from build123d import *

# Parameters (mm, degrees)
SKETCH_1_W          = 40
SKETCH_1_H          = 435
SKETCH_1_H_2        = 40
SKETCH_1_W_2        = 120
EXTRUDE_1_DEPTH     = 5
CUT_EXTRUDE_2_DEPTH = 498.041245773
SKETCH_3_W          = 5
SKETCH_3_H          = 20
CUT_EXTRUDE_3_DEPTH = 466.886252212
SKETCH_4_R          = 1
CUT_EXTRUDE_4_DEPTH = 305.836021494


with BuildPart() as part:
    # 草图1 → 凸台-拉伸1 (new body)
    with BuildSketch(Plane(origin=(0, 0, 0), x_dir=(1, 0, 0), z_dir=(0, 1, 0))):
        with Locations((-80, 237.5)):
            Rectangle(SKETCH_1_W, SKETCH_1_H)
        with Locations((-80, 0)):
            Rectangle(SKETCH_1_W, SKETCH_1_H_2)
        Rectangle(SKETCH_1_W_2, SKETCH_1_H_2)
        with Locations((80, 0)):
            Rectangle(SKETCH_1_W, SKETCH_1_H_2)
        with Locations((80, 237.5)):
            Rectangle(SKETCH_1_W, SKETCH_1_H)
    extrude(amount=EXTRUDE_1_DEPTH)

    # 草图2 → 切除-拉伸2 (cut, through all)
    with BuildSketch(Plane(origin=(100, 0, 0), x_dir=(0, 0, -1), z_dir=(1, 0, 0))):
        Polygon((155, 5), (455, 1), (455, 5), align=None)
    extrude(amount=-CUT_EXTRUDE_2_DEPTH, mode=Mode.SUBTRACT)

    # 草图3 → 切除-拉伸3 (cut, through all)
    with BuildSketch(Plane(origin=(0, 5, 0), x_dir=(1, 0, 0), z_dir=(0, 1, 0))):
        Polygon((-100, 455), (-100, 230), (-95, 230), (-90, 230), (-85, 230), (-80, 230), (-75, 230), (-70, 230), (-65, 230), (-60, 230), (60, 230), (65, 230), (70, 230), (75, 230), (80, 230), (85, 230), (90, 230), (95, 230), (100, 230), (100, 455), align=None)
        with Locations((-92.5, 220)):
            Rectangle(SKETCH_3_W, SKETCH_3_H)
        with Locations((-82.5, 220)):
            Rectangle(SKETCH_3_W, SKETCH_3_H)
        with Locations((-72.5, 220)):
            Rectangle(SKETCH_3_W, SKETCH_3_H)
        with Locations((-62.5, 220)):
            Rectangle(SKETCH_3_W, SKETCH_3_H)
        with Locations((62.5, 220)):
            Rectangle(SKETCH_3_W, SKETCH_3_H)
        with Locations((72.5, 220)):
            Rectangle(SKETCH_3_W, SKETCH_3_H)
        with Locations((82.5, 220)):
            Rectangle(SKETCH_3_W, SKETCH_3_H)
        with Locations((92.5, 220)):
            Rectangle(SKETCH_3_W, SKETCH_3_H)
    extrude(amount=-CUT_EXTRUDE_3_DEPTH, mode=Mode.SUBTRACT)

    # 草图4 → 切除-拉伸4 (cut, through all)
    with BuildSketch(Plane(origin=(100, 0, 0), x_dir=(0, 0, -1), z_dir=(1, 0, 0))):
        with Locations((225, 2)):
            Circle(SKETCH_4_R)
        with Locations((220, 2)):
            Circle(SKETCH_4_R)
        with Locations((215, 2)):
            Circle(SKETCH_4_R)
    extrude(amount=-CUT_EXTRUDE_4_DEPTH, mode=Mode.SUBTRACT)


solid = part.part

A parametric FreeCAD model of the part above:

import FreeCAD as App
import Part
import Sketcher
from FreeCAD import Vector

doc = App.newDocument("Part")
params = doc.addObject("Spreadsheet::Sheet", "Params")
for row, (alias, value) in enumerate([
    ("sketch1_width", "200 mm"),
    ("sketch1_width2", "40 mm"),
    ("sketch1_height", "475 mm"),
    ("sketch1_height2", "435 mm"),
    ("pad1_length", "5 mm"),
    ("sketch2_width", "4 mm"),
    ("sketch2_height", "300 mm"),
    ("sketch3_width", "5 mm"),
    ("sketch3_width2", "120 mm"),
    ("sketch3_height", "225 mm"),
    ("sketch3_height2", "20 mm"),
    ("sketch4_diameter", "2 mm"),
], start=1):
    params.set(f"A{row}", alias)
    params.set(f"B{row}", "=" + value)
    params.setAlias(f"B{row}", alias)

body = doc.addObject("PartDesign::Body", "Body")

sketch1 = body.newObject("Sketcher::SketchObject", "Sketch")
sketch1.AttachmentSupport = (doc.getObject("XZ_Plane"), [""])
sketch1.MapMode = "FlatFace"
sketch1.addGeometry(Part.LineSegment(Vector(-100, -455, 0), Vector(-100, 20, 0)), False)
sketch1.addGeometry(Part.LineSegment(Vector(-100, 20, 0), Vector(100, 20, 0)), False)
sketch1.addGeometry(Part.LineSegment(Vector(100, 20, 0), Vector(100, -455, 0)), False)
sketch1.addGeometry(Part.LineSegment(Vector(100, -455, 0), Vector(60, -455, 0)), False)
sketch1.addGeometry(Part.LineSegment(Vector(60, -455, 0), Vector(60, -20, 0)), False)
sketch1.addGeometry(Part.LineSegment(Vector(60, -20, 0), Vector(-60, -20, 0)), False)
sketch1.addGeometry(Part.LineSegment(Vector(-60, -20, 0), Vector(-60, -455, 0)), False)
sketch1.addGeometry(Part.LineSegment(Vector(-60, -455, 0), Vector(-100, -455, 0)), False)
sketch1.addConstraint(Sketcher.Constraint("Coincident", 0, 2, 1, 1))
sketch1.addConstraint(Sketcher.Constraint("Coincident", 1, 2, 2, 1))
sketch1.addConstraint(Sketcher.Constraint("Coincident", 2, 2, 3, 1))
sketch1.addConstraint(Sketcher.Constraint("Coincident", 3, 2, 4, 1))
sketch1.addConstraint(Sketcher.Constraint("Coincident", 4, 2, 5, 1))
sketch1.addConstraint(Sketcher.Constraint("Coincident", 5, 2, 6, 1))
sketch1.addConstraint(Sketcher.Constraint("Coincident", 6, 2, 7, 1))
sketch1.addConstraint(Sketcher.Constraint("Coincident", 7, 2, 0, 1))
sketch1.addConstraint(Sketcher.Constraint("Vertical", 0))
sketch1.addConstraint(Sketcher.Constraint("Horizontal", 1))
sketch1.addConstraint(Sketcher.Constraint("Vertical", 2))
sketch1.addConstraint(Sketcher.Constraint("Horizontal", 3))
sketch1.addConstraint(Sketcher.Constraint("Vertical", 4))
sketch1.addConstraint(Sketcher.Constraint("Horizontal", 5))
sketch1.addConstraint(Sketcher.Constraint("Vertical", 6))
sketch1.addConstraint(Sketcher.Constraint("Horizontal", 7))
sketch1.addConstraint(Sketcher.Constraint("Symmetric", 3, 2, 6, 2, -2))
sketch1.addConstraint(Sketcher.Constraint("Equal", 3, 7))
sketch1.addConstraint(Sketcher.Constraint("DistanceX", 1, 1, 1, 2, 200.0))
sketch1.addConstraint(Sketcher.Constraint("DistanceX", 3, 2, 3, 1, 40.0))
sketch1.addConstraint(Sketcher.Constraint("DistanceY", 0, 1, 0, 2, 475.0))
sketch1.addConstraint(Sketcher.Constraint("DistanceY", 4, 1, 4, 2, 435.0))
sketch1.addConstraint(Sketcher.Constraint("DistanceY", -1, 1, 0, 2, 20.0))
sketch1.setExpression("Constraints[18]", "Params.sketch1_width")
sketch1.setExpression("Constraints[19]", "Params.sketch1_width2")
sketch1.setExpression("Constraints[20]", "Params.sketch1_height")
sketch1.setExpression("Constraints[21]", "Params.sketch1_height2")
pad1 = body.newObject("PartDesign::Pad", "Pad")
pad1.Profile = sketch1
pad1.setExpression("Length", "Params.pad1_length")
pad1.Reversed = True

sketch2 = body.newObject("Sketcher::SketchObject", "Sketch001")
sketch2.AttachmentSupport = (doc.getObject("YZ_Plane"), [""])
sketch2.MapMode = "FlatFace"
sketch2.AttachmentOffset = App.Placement(Vector(0, 0, 100), App.Rotation())
sketch2.addGeometry(Part.LineSegment(Vector(5, -155, 0), Vector(1, -455, 0)), False)
sketch2.addGeometry(Part.LineSegment(Vector(1, -455, 0), Vector(5, -455, 0)), False)
sketch2.addGeometry(Part.LineSegment(Vector(5, -455, 0), Vector(5, -155, 0)), False)
sketch2.addConstraint(Sketcher.Constraint("Coincident", 0, 2, 1, 1))
sketch2.addConstraint(Sketcher.Constraint("Coincident", 1, 2, 2, 1))
sketch2.addConstraint(Sketcher.Constraint("Coincident", 2, 2, 0, 1))
sketch2.addConstraint(Sketcher.Constraint("Horizontal", 1))
sketch2.addConstraint(Sketcher.Constraint("Vertical", 2))
sketch2.addConstraint(Sketcher.Constraint("DistanceX", 1, 1, 1, 2, 4.0))
sketch2.addConstraint(Sketcher.Constraint("DistanceY", 2, 1, 2, 2, 300.0))
sketch2.addConstraint(Sketcher.Constraint("DistanceX", -1, 1, 0, 2, 1.0))
sketch2.addConstraint(Sketcher.Constraint("DistanceY", 0, 2, -1, 1, 455.0))
sketch2.setExpression("Constraints[5]", "Params.sketch2_width")
sketch2.setExpression("Constraints[6]", "Params.sketch2_height")
pocket1 = body.newObject("PartDesign::Pocket", "Pocket")
pocket1.Profile = sketch2
pocket1.Type = "ThroughAll"

sketch3 = body.newObject("Sketcher::SketchObject", "Sketch002")
sketch3.AttachmentSupport = (doc.getObject("XZ_Plane"), [""])
sketch3.MapMode = "FlatFace"
sketch3.AttachmentOffset = App.Placement(Vector(0, 0, -5), App.Rotation())
sketch3.addGeometry(Part.LineSegment(Vector(-100, -455, 0), Vector(-100, -230, 0)), False)
sketch3.addGeometry(Part.LineSegment(Vector(-100, -230, 0), Vector(-95, -230, 0)), False)
sketch3.addGeometry(Part.LineSegment(Vector(-95, -230, 0), Vector(-95, -210, 0)), False)
sketch3.addGeometry(Part.LineSegment(Vector(-95, -210, 0), Vector(-90, -210, 0)), False)
sketch3.addGeometry(Part.LineSegment(Vector(-90, -210, 0), Vector(-90, -230, 0)), False)
sketch3.addGeometry(Part.LineSegment(Vector(-90, -230, 0), Vector(-85, -230, 0)), False)
sketch3.addGeometry(Part.LineSegment(Vector(-85, -230, 0), Vector(-85, -210, 0)), False)
sketch3.addGeometry(Part.LineSegment(Vector(-85, -210, 0), Vector(-80, -210, 0)), False)
sketch3.addGeometry(Part.LineSegment(Vector(-80, -210, 0), Vector(-80, -230, 0)), False)
sketch3.addGeometry(Part.LineSegment(Vector(-80, -230, 0), Vector(-75, -230, 0)), False)
sketch3.addGeometry(Part.LineSegment(Vector(-75, -230, 0), Vector(-75, -210, 0)), False)
sketch3.addGeometry(Part.LineSegment(Vector(-75, -210, 0), Vector(-70, -210, 0)), False)
sketch3.addGeometry(Part.LineSegment(Vector(-70, -210, 0), Vector(-70, -230, 0)), False)
sketch3.addGeometry(Part.LineSegment(Vector(-70, -230, 0), Vector(-65, -230, 0)), False)
sketch3.addGeometry(Part.LineSegment(Vector(-65, -230, 0), Vector(-65, -210, 0)), False)
sketch3.addGeometry(Part.LineSegment(Vector(-65, -210, 0), Vector(-60, -210, 0)), False)
sketch3.addGeometry(Part.LineSegment(Vector(-60, -210, 0), Vector(-60, -230, 0)), False)
sketch3.addGeometry(Part.LineSegment(Vector(-60, -230, 0), Vector(60, -230, 0)), False)
sketch3.addGeometry(Part.LineSegment(Vector(60, -230, 0), Vector(60, -210, 0)), False)
sketch3.addGeometry(Part.LineSegment(Vector(60, -210, 0), Vector(65, -210, 0)), False)
sketch3.addGeometry(Part.LineSegment(Vector(65, -210, 0), Vector(65, -230, 0)), False)
sketch3.addGeometry(Part.LineSegment(Vector(65, -230, 0), Vector(70, -230, 0)), False)
sketch3.addGeometry(Part.LineSegment(Vector(70, -230, 0), Vector(70, -210, 0)), False)
sketch3.addGeometry(Part.LineSegment(Vector(70, -210, 0), Vector(75, -210, 0)), False)
sketch3.addGeometry(Part.LineSegment(Vector(75, -210, 0), Vector(75, -230, 0)), False)
sketch3.addGeometry(Part.LineSegment(Vector(75, -230, 0), Vector(80, -230, 0)), False)
sketch3.addGeometry(Part.LineSegment(Vector(80, -230, 0), Vector(80, -210, 0)), False)
sketch3.addGeometry(Part.LineSegment(Vector(80, -210, 0), Vector(85, -210, 0)), False)
sketch3.addGeometry(Part.LineSegment(Vector(85, -210, 0), Vector(85, -230, 0)), False)
sketch3.addGeometry(Part.LineSegment(Vector(85, -230, 0), Vector(90, -230, 0)), False)
sketch3.addGeometry(Part.LineSegment(Vector(90, -230, 0), Vector(90, -210, 0)), False)
sketch3.addGeometry(Part.LineSegment(Vector(90, -210, 0), Vector(95, -210, 0)), False)
sketch3.addGeometry(Part.LineSegment(Vector(95, -210, 0), Vector(95, -230, 0)), False)
sketch3.addGeometry(Part.LineSegment(Vector(95, -230, 0), Vector(100, -230, 0)), False)
sketch3.addGeometry(Part.LineSegment(Vector(100, -230, 0), Vector(100, -455, 0)), False)
sketch3.addGeometry(Part.LineSegment(Vector(100, -455, 0), Vector(-100, -455, 0)), False)
sketch3.addConstraint(Sketcher.Constraint("Coincident", 0, 2, 1, 1))
sketch3.addConstraint(Sketcher.Constraint("Coincident", 1, 2, 2, 1))
sketch3.addConstraint(Sketcher.Constraint("Coincident", 2, 2, 3, 1))
sketch3.addConstraint(Sketcher.Constraint("Coincident", 3, 2, 4, 1))
sketch3.addConstraint(Sketcher.Constraint("Coincident", 4, 2, 5, 1))
sketch3.addConstraint(Sketcher.Constraint("Coincident", 5, 2, 6, 1))
sketch3.addConstraint(Sketcher.Constraint("Coincident", 6, 2, 7, 1))
sketch3.addConstraint(Sketcher.Constraint("Coincident", 7, 2, 8, 1))
sketch3.addConstraint(Sketcher.Constraint("Coincident", 8, 2, 9, 1))
sketch3.addConstraint(Sketcher.Constraint("Coincident", 9, 2, 10, 1))
sketch3.addConstraint(Sketcher.Constraint("Coincident", 10, 2, 11, 1))
sketch3.addConstraint(Sketcher.Constraint("Coincident", 11, 2, 12, 1))
sketch3.addConstraint(Sketcher.Constraint("Coincident", 12, 2, 13, 1))
sketch3.addConstraint(Sketcher.Constraint("Coincident", 13, 2, 14, 1))
sketch3.addConstraint(Sketcher.Constraint("Coincident", 14, 2, 15, 1))
sketch3.addConstraint(Sketcher.Constraint("Coincident", 15, 2, 16, 1))
sketch3.addConstraint(Sketcher.Constraint("Coincident", 16, 2, 17, 1))
sketch3.addConstraint(Sketcher.Constraint("Coincident", 17, 2, 18, 1))
sketch3.addConstraint(Sketcher.Constraint("Coincident", 18, 2, 19, 1))
sketch3.addConstraint(Sketcher.Constraint("Coincident", 19, 2, 20, 1))
sketch3.addConstraint(Sketcher.Constraint("Coincident", 20, 2, 21, 1))
sketch3.addConstraint(Sketcher.Constraint("Coincident", 21, 2, 22, 1))
sketch3.addConstraint(Sketcher.Constraint("Coincident", 22, 2, 23, 1))
sketch3.addConstraint(Sketcher.Constraint("Coincident", 23, 2, 24, 1))
sketch3.addConstraint(Sketcher.Constraint("Coincident", 24, 2, 25, 1))
sketch3.addConstraint(Sketcher.Constraint("Coincident", 25, 2, 26, 1))
sketch3.addConstraint(Sketcher.Constraint("Coincident", 26, 2, 27, 1))
sketch3.addConstraint(Sketcher.Constraint("Coincident", 27, 2, 28, 1))
sketch3.addConstraint(Sketcher.Constraint("Coincident", 28, 2, 29, 1))
sketch3.addConstraint(Sketcher.Constraint("Coincident", 29, 2, 30, 1))
sketch3.addConstraint(Sketcher.Constraint("Coincident", 30, 2, 31, 1))
sketch3.addConstraint(Sketcher.Constraint("Coincident", 31, 2, 32, 1))
sketch3.addConstraint(Sketcher.Constraint("Coincident", 32, 2, 33, 1))
sketch3.addConstraint(Sketcher.Constraint("Coincident", 33, 2, 34, 1))
sketch3.addConstraint(Sketcher.Constraint("Coincident", 34, 2, 35, 1))
sketch3.addConstraint(Sketcher.Constraint("Coincident", 35, 2, 0, 1))
sketch3.addConstraint(Sketcher.Constraint("Vertical", 0))
sketch3.addConstraint(Sketcher.Constraint("Horizontal", 1))
sketch3.addConstraint(Sketcher.Constraint("Vertical", 2))
sketch3.addConstraint(Sketcher.Constraint("Horizontal", 3))
sketch3.addConstraint(Sketcher.Constraint("Vertical", 4))
sketch3.addConstraint(Sketcher.Constraint("Horizontal", 5))
sketch3.addConstraint(Sketcher.Constraint("Vertical", 6))
sketch3.addConstraint(Sketcher.Constraint("Horizontal", 7))
sketch3.addConstraint(Sketcher.Constraint("Vertical", 8))
sketch3.addConstraint(Sketcher.Constraint("Horizontal", 9))
sketch3.addConstraint(Sketcher.Constraint("Vertical", 10))
sketch3.addConstraint(Sketcher.Constraint("Horizontal", 11))
sketch3.addConstraint(Sketcher.Constraint("Vertical", 12))
sketch3.addConstraint(Sketcher.Constraint("Horizontal", 13))
sketch3.addConstraint(Sketcher.Constraint("Vertical", 14))
sketch3.addConstraint(Sketcher.Constraint("Horizontal", 15))
sketch3.addConstraint(Sketcher.Constraint("Vertical", 16))
sketch3.addConstraint(Sketcher.Constraint("Horizontal", 17))
sketch3.addConstraint(Sketcher.Constraint("Vertical", 18))
sketch3.addConstraint(Sketcher.Constraint("Horizontal", 19))
sketch3.addConstraint(Sketcher.Constraint("Vertical", 20))
sketch3.addConstraint(Sketcher.Constraint("Horizontal", 21))
sketch3.addConstraint(Sketcher.Constraint("Vertical", 22))
sketch3.addConstraint(Sketcher.Constraint("Horizontal", 23))
sketch3.addConstraint(Sketcher.Constraint("Vertical", 24))
sketch3.addConstraint(Sketcher.Constraint("Horizontal", 25))
sketch3.addConstraint(Sketcher.Constraint("Vertical", 26))
sketch3.addConstraint(Sketcher.Constraint("Horizontal", 27))
sketch3.addConstraint(Sketcher.Constraint("Vertical", 28))
sketch3.addConstraint(Sketcher.Constraint("Horizontal", 29))
sketch3.addConstraint(Sketcher.Constraint("Vertical", 30))
sketch3.addConstraint(Sketcher.Constraint("Horizontal", 31))
sketch3.addConstraint(Sketcher.Constraint("Vertical", 32))
sketch3.addConstraint(Sketcher.Constraint("Horizontal", 33))
sketch3.addConstraint(Sketcher.Constraint("Vertical", 34))
sketch3.addConstraint(Sketcher.Constraint("Horizontal", 35))
sketch3.addConstraint(Sketcher.Constraint("Symmetric", 15, 2, 18, 2, -2))
sketch3.addConstraint(Sketcher.Constraint("Symmetric", 13, 2, 20, 2, -2))
sketch3.addConstraint(Sketcher.Constraint("Symmetric", 11, 2, 22, 2, -2))
sketch3.addConstraint(Sketcher.Constraint("Symmetric", 9, 2, 24, 2, -2))
sketch3.addConstraint(Sketcher.Constraint("Symmetric", 7, 2, 26, 2, -2))
sketch3.addConstraint(Sketcher.Constraint("Symmetric", 5, 2, 28, 2, -2))
sketch3.addConstraint(Sketcher.Constraint("Symmetric", 3, 2, 30, 2, -2))
sketch3.addConstraint(Sketcher.Constraint("Symmetric", 1, 2, 32, 2, -2))
sketch3.addConstraint(Sketcher.Constraint("Horizontal", 1, 2, 4, 2))
sketch3.addConstraint(Sketcher.Constraint("Horizontal", 3, 2, 6, 2))
sketch3.addConstraint(Sketcher.Constraint("Horizontal", 5, 2, 8, 2))
sketch3.addConstraint(Sketcher.Constraint("Horizontal", 7, 2, 10, 2))
sketch3.addConstraint(Sketcher.Constraint("Horizontal", 9, 2, 12, 2))
sketch3.addConstraint(Sketcher.Constraint("Horizontal", 11, 2, 14, 2))
sketch3.addConstraint(Sketcher.Constraint("Horizontal", 13, 2, 16, 2))
sketch3.addConstraint(Sketcher.Constraint("Equal", 1, 3))
sketch3.addConstraint(Sketcher.Constraint("Equal", 3, 5))
sketch3.addConstraint(Sketcher.Constraint("Equal", 5, 7))
sketch3.addConstraint(Sketcher.Constraint("Equal", 7, 9))
sketch3.addConstraint(Sketcher.Constraint("Equal", 9, 11))
sketch3.addConstraint(Sketcher.Constraint("Equal", 11, 13))
sketch3.addConstraint(Sketcher.Constraint("Equal", 13, 15))
sketch3.addConstraint(Sketcher.Constraint("Equal", 31, 33))
sketch3.addConstraint(Sketcher.Constraint("DistanceX", 1, 1, 1, 2, 5.0))
sketch3.addConstraint(Sketcher.Constraint("DistanceX", 17, 1, 17, 2, 120.0))
sketch3.addConstraint(Sketcher.Constraint("DistanceY", 0, 1, 0, 2, 225.0))
sketch3.addConstraint(Sketcher.Constraint("DistanceY", 2, 1, 2, 2, 20.0))
sketch3.addConstraint(Sketcher.Constraint("DistanceY", 0, 2, -1, 1, 230.0))
sketch3.setExpression("Constraints[95]", "Params.sketch3_width")
sketch3.setExpression("Constraints[96]", "Params.sketch3_width2")
sketch3.setExpression("Constraints[97]", "Params.sketch3_height")
sketch3.setExpression("Constraints[98]", "Params.sketch3_height2")
pocket2 = body.newObject("PartDesign::Pocket", "Pocket001")
pocket2.Profile = sketch3
pocket2.Type = "ThroughAll"
pocket2.Reversed = True

sketch4 = body.newObject("Sketcher::SketchObject", "Sketch003")
sketch4.AttachmentSupport = (doc.getObject("YZ_Plane"), [""])
sketch4.MapMode = "FlatFace"
sketch4.AttachmentOffset = App.Placement(Vector(0, 0, 100), App.Rotation())
sketch4.addGeometry(Part.Circle(Vector(2, -225, 0), Vector(0, 0, 1), 1), False)
sketch4.addGeometry(Part.Circle(Vector(2, -220, 0), Vector(0, 0, 1), 1), False)
sketch4.addGeometry(Part.Circle(Vector(2, -215, 0), Vector(0, 0, 1), 1), False)
sketch4.addConstraint(Sketcher.Constraint("Equal", 0, 1))
sketch4.addConstraint(Sketcher.Constraint("Equal", 1, 2))
sketch4.addConstraint(Sketcher.Constraint("Vertical", 0, 3, 1, 3))
sketch4.addConstraint(Sketcher.Constraint("Vertical", 1, 3, 2, 3))
sketch4.addConstraint(Sketcher.Constraint("Diameter", 0, 2.0))
sketch4.addConstraint(Sketcher.Constraint("DistanceX", -1, 1, 0, 3, 2.0))
sketch4.addConstraint(Sketcher.Constraint("DistanceY", 0, 3, -1, 1, 225.0))
sketch4.addConstraint(Sketcher.Constraint("DistanceY", 1, 3, -1, 1, 220.0))
sketch4.addConstraint(Sketcher.Constraint("DistanceY", 2, 3, -1, 1, 215.0))
sketch4.setExpression("Constraints[4]", "Params.sketch4_diameter")
pocket3 = body.newObject("PartDesign::Pocket", "Pocket002")
pocket3.Profile = sketch4
pocket3.Type = "ThroughAll"

doc.recompute()
